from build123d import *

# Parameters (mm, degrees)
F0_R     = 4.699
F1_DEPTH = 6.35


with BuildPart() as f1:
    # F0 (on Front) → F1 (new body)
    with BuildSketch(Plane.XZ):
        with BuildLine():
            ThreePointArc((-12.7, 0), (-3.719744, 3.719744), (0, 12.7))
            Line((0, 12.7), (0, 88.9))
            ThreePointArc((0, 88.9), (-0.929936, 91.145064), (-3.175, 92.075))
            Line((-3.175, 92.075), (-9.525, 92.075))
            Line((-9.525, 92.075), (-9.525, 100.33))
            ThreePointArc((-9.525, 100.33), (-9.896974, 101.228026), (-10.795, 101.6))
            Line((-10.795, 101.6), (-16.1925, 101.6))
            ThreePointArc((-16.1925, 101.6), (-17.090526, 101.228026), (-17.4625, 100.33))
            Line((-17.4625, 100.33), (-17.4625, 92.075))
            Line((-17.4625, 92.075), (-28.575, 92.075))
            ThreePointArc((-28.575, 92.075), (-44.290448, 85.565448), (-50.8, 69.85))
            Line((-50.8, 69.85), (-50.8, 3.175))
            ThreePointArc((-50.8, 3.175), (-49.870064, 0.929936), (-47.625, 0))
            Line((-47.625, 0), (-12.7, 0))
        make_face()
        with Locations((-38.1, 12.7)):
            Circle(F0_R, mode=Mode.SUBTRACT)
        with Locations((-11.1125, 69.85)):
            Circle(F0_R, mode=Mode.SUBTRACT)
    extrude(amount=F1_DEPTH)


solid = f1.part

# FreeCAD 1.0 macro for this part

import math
import FreeCAD as App
import Part
import Sketcher

V = App.Vector
Q = App.Units.Quantity

doc = App.newDocument("Part")
body = doc.addObject("PartDesign::Body", "Body")

# Sketch on XZ plane
sketch1 = doc.addObject("Sketcher::SketchObject", "Sketch")
body.addObject(sketch1)
sketch1.AttachmentSupport = (doc.XZ_Plane, [""])
sketch1.MapMode = "FlatFace"
sketch1.addGeometry([
    Part.ArcOfCircle(Part.Circle(V(-12.7, 12.7, 0), V(0, 0, 1), 12.7), math.radians(-90), math.radians(0)),  # 0
    Part.LineSegment(V(0, 12.7, 0), V(0, 88.9, 0)),  # 1
    Part.ArcOfCircle(Part.Circle(V(-3.2, 88.9, 0), V(0, 0, 1), 3.2), math.radians(0), math.radians(90)),  # 2
    Part.LineSegment(V(-3.2, 92.1, 0), V(-9.5, 92.1, 0)),  # 3
    Part.LineSegment(V(-9.5, 92.1, 0), V(-9.5, 100.3, 0)),  # 4
    Part.ArcOfCircle(Part.Circle(V(-10.8, 100.3, 0), V(0, 0, 1), 1.3), math.radians(0), math.radians(90)),  # 5
    Part.LineSegment(V(-10.8, 101.6, 0), V(-16.2, 101.6, 0)),  # 6
    Part.ArcOfCircle(Part.Circle(V(-16.2, 100.3, 0), V(0, 0, 1), 1.3), math.radians(90), math.radians(180)),  # 7
    Part.LineSegment(V(-17.5, 100.3, 0), V(-17.5, 92.1, 0)),  # 8
    Part.LineSegment(V(-17.5, 92.1, 0), V(-28.6, 92.1, 0)),  # 9
    Part.ArcOfCircle(Part.Circle(V(-28.6, 69.8, 0), V(0, 0, 1), 22.2), math.radians(90), math.radians(180)),  # 10
    Part.LineSegment(V(-50.8, 69.8, 0), V(-50.8, 3.2, 0)),  # 11
    Part.ArcOfCircle(Part.Circle(V(-47.6, 3.2, 0), V(0, 0, 1), 3.2), math.radians(-180), math.radians(-90)),  # 12
    Part.LineSegment(V(-47.6, 0, 0), V(-12.7, 0, 0)),  # 13
    Part.Circle(V(-38.1, 12.7, 0), V(0, 0, 1), 4.7),  # 14
    Part.Circle(V(-11.1, 69.8, 0), V(0, 0, 1), 4.7),  # 15
], False)
sketch1.addConstraint([
    Sketcher.Constraint("Tangent", 0, 2, 1, 1),
    Sketcher.Constraint("Tangent", 1, 2, 2, 1),
    Sketcher.Constraint("Tangent", 2, 2, 3, 1),
    Sketcher.Constraint("Coincident", 3, 2, 4, 1),
    Sketcher.Constraint("Tangent", 4, 2, 5, 1),
    Sketcher.Constraint("Tangent", 5, 2, 6, 1),
    Sketcher.Constraint("Tangent", 6, 2, 7, 1),
    Sketcher.Constraint("Tangent", 7, 2, 8, 1),
    Sketcher.Constraint("Coincident", 8, 2, 9, 1),
    Sketcher.Constraint("Tangent", 9, 2, 10, 1),
    Sketcher.Constraint("Tangent", 10, 2, 11, 1),
    Sketcher.Constraint("Tangent", 11, 2, 12, 1),
    Sketcher.Constraint("Tangent", 12, 2, 13, 1),
    Sketcher.Constraint("Tangent", 13, 2, 0, 1),
    Sketcher.Constraint("Vertical", 1),
    Sketcher.Constraint("Horizontal", 3),
    Sketcher.Constraint("Vertical", 4),
    Sketcher.Constraint("Horizontal", 6),
    Sketcher.Constraint("Vertical", 8),
    Sketcher.Constraint("Horizontal", 9),
    Sketcher.Constraint("Vertical", 11),
    Sketcher.Constraint("Horizontal", 13),
    Sketcher.Constraint("Equal", 5, 7),
    Sketcher.Constraint("Equal", 2, 12),
    Sketcher.Constraint("Equal", 14, 15),
    Sketcher.Constraint("PointOnObject", 0, 2, -2),
    Sketcher.Constraint("PointOnObject", 12, 2, -1),
    Sketcher.Constraint("Horizontal", 0, 3, 14, 3),
    Sketcher.Constraint("Horizontal", 10, 3, 15, 3),
    Sketcher.Constraint("Horizontal", 3, 2, 8, 2),
    Sketcher.Constraint("Radius", 0, Q("0.5 in")),
    Sketcher.Constraint("Diameter", 14, Q("0.37 in")),
    Sketcher.Constraint("DistanceY", 1, 1, 1, 2, Q("3 in")),
    Sketcher.Constraint("Radius", 5, Q("0.0499999 in")),
    Sketcher.Constraint("DistanceY", -1, 1, 5, 2, Q("4 in")),
    Sketcher.Constraint("DistanceX", 10, 2, -1, 1, Q("2 in")),
    Sketcher.Constraint("Radius", 2, Q("0.125 in")),
    Sketcher.Constraint("Radius", 10, Q("0.875 in")),
    Sketcher.Constraint("DistanceX", 14, 3, 0, 3, Q("1 in")),
    Sketcher.Constraint("DistanceX", 3, 2, 3, 1, Q("0.25 in")),
    Sketcher.Constraint("DistanceX", 7, 3, 15, 3, Q("0.2000001 in")),
    Sketcher.Constraint("DistanceX", 9, 2, 9, 1, Q("0.4375 in")),
])
pad1 = doc.addObject("PartDesign::Pad", "Pad")
body.addObject(pad1)
pad1.Profile = sketch1
pad1.Length = Q("0.25 in")

doc.recompute()
